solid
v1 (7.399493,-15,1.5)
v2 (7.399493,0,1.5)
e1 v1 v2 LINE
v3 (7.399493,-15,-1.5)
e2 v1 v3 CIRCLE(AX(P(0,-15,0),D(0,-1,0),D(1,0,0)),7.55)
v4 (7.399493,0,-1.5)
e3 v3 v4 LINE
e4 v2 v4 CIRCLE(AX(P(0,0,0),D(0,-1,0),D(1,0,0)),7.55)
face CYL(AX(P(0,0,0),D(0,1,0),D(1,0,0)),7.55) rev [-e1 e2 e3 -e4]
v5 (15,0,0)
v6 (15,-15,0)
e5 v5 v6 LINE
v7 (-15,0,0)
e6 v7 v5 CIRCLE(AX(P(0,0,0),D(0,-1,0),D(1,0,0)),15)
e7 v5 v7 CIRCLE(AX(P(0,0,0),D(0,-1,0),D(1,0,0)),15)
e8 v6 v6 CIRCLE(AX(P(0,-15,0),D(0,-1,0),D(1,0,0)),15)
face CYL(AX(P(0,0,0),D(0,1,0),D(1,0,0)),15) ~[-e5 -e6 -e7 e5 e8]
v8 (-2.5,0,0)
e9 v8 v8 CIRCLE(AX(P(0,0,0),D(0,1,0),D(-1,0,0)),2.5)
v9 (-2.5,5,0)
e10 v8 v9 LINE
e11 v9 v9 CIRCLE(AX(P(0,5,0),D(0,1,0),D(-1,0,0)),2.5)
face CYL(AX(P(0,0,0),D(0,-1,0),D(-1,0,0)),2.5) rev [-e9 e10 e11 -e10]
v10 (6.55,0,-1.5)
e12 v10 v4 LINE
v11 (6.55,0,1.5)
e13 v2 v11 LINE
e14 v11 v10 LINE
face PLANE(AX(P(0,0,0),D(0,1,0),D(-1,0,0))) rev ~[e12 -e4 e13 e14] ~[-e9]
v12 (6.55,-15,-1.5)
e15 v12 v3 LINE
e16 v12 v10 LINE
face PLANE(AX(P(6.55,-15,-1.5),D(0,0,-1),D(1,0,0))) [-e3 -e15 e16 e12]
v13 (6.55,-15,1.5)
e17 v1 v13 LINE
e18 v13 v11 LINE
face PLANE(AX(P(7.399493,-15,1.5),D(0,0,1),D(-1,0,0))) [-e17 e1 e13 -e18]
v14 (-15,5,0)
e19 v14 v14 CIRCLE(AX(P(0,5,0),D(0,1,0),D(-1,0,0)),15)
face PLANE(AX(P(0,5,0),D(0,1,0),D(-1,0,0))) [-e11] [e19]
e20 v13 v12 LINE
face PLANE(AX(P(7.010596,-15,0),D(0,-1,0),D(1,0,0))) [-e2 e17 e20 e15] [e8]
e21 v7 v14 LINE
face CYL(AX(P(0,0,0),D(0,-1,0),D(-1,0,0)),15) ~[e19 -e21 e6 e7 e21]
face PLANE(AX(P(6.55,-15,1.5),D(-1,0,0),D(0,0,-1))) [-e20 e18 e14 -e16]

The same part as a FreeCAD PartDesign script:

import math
import FreeCAD as App
import Part
import Sketcher
Q = App.Units.Quantity

doc = App.newDocument("Part")
params = doc.addObject("Spreadsheet::Sheet", "Params")
for row, (alias, value) in enumerate([
    ("sketch1_diameter", "30 mm"),
    ("sketch1_diameter2", "15.1 mm"),
    ("pad1_length", "15 mm"),
    ("sketch2_diameter", "30 mm"),
    ("sketch2_diameter2", "5 mm"),
    ("pad2_length", "5 mm"),
    ("sketch3_height", "3 mm"),
    ("pad3_length", "15 mm"),
], start=1):
    params.set(f"A{row}", alias)
    params.set(f"B{row}", "=" + value)
    params.setAlias(f"B{row}", alias)

body = doc.addObject("PartDesign::Body", "Body")

# Sketch on XZ plane
sketch1 = body.newObject("Sketcher::SketchObject", "Sketch")
sketch1.AttachmentSupport = (doc.getObject("XZ_Plane"), [""])
sketch1.MapMode = "FlatFace"
sketch1.addGeometry([
    Part.Circle(App.Vector(0, 0, 0), App.Vector(0, 0, 1), 15),
    Part.Circle(App.Vector(0, 0, 0), App.Vector(0, 0, 1), 8),
], False)
sketch1.addConstraint([
    Sketcher.Constraint("Coincident", 0, 3, -1, 1),
    Sketcher.Constraint("Coincident", 1, 3, -1, 1),
    Sketcher.Constraint("Diameter", 0, Q("30 mm")),
    Sketcher.Constraint("Diameter", 1, Q("15.1 mm")),
])
sketch1.setExpression("Constraints[2]", "Params.sketch1_diameter")
sketch1.setExpression("Constraints[3]", "Params.sketch1_diameter2")
pad1 = body.newObject("PartDesign::Pad", "Pad")
pad1.Profile = sketch1
pad1.setExpression("Length", "Params.pad1_length")

# Sketch on XZ plane
sketch2 = body.newObject("Sketcher::SketchObject", "Sketch001")
sketch2.AttachmentSupport = (doc.getObject("XZ_Plane"), [""])
sketch2.MapMode = "FlatFace"
sketch2.addGeometry([
    Part.Circle(App.Vector(0, 0, 0), App.Vector(0, 0, 1), 15),
    Part.Circle(App.Vector(0, 0, 0), App.Vector(0, 0, 1), 2.5),
], False)
sketch2.addConstraint([
    Sketcher.Constraint("Coincident", 0, 3, -1, 1),
    Sketcher.Constraint("Coincident", 1, 3, -1, 1),
    Sketcher.Constraint("Diameter", 0, Q("30 mm")),
    Sketcher.Constraint("Diameter", 1, Q("5 mm")),
])
sketch2.setExpression("Constraints[2]", "Params.sketch2_diameter")
sketch2.setExpression("Constraints[3]", "Params.sketch2_diameter2")
pad2 = body.newObject("PartDesign::Pad", "Pad001")
pad2.Profile = sketch2
pad2.setExpression("Length", "Params.pad2_length")
pad2.Reversed = True

# Sketch on XZ plane
sketch3 = body.newObject("Sketcher::SketchObject", "Sketch002")
sketch3.AttachmentSupport = (doc.getObject("XZ_Plane"), [""])
sketch3.MapMode = "FlatFace"
sketch3.AttachmentOffset = App.Placement(App.Vector(0, 0, 15), App.Rotation())
sketch3.addGeometry([
    Part.ArcOfCircle(Part.Circle(App.Vector(0, 0, 0), App.Vector(0, 0, 1), 7.5), math.radians(-11), math.radians(11)),
    Part.LineSegment(App.Vector(7.4, 1.5, 0), App.Vector(6.5, 1.5, 0)),
    Part.LineSegment(App.Vector(6.5, 1.5, 0), App.Vector(6.5, -1.5, 0)),
    Part.LineSegment(App.Vector(6.5, -1.5, 0), App.Vector(7.4, -1.5, 0)),
], False)
sketch3.addConstraint([
    Sketcher.Constraint("Coincident", 0, 2, 1, 1),
    Sketcher.Constraint("Coincident", 1, 2, 2, 1),
    Sketcher.Constraint("Coincident", 2, 2, 3, 1),
    Sketcher.Constraint("Coincident", 3, 2, 0, 1),
    Sketcher.Constraint("Horizontal", 1),
    Sketcher.Constraint("Vertical", 2),
    Sketcher.Constraint("Horizontal", 3),
    Sketcher.Constraint("Symmetric", 0, 2, 3, 2, -1),
    Sketcher.Constraint("DistanceY", 2, 2, 2, 1, Q("3 mm")),
    Sketcher.Constraint("DistanceX", -1, 1, 1, 2, Q("6.55 mm")),
    Sketcher.Constraint("Radius", 0, Q("7.549989 mm")),
    Sketcher.Constraint("DistanceX", 1, 2, 1, 1, Q("0.849493 mm")),
])
sketch3.setExpression("Constraints[8]", "Params.sketch3_height")
pad3 = body.newObject("PartDesign::Pad", "Pad002")
pad3.Profile = sketch3
pad3.setExpression("Length", "Params.pad3_length")
pad3.Reversed = True

doc.recompute()
